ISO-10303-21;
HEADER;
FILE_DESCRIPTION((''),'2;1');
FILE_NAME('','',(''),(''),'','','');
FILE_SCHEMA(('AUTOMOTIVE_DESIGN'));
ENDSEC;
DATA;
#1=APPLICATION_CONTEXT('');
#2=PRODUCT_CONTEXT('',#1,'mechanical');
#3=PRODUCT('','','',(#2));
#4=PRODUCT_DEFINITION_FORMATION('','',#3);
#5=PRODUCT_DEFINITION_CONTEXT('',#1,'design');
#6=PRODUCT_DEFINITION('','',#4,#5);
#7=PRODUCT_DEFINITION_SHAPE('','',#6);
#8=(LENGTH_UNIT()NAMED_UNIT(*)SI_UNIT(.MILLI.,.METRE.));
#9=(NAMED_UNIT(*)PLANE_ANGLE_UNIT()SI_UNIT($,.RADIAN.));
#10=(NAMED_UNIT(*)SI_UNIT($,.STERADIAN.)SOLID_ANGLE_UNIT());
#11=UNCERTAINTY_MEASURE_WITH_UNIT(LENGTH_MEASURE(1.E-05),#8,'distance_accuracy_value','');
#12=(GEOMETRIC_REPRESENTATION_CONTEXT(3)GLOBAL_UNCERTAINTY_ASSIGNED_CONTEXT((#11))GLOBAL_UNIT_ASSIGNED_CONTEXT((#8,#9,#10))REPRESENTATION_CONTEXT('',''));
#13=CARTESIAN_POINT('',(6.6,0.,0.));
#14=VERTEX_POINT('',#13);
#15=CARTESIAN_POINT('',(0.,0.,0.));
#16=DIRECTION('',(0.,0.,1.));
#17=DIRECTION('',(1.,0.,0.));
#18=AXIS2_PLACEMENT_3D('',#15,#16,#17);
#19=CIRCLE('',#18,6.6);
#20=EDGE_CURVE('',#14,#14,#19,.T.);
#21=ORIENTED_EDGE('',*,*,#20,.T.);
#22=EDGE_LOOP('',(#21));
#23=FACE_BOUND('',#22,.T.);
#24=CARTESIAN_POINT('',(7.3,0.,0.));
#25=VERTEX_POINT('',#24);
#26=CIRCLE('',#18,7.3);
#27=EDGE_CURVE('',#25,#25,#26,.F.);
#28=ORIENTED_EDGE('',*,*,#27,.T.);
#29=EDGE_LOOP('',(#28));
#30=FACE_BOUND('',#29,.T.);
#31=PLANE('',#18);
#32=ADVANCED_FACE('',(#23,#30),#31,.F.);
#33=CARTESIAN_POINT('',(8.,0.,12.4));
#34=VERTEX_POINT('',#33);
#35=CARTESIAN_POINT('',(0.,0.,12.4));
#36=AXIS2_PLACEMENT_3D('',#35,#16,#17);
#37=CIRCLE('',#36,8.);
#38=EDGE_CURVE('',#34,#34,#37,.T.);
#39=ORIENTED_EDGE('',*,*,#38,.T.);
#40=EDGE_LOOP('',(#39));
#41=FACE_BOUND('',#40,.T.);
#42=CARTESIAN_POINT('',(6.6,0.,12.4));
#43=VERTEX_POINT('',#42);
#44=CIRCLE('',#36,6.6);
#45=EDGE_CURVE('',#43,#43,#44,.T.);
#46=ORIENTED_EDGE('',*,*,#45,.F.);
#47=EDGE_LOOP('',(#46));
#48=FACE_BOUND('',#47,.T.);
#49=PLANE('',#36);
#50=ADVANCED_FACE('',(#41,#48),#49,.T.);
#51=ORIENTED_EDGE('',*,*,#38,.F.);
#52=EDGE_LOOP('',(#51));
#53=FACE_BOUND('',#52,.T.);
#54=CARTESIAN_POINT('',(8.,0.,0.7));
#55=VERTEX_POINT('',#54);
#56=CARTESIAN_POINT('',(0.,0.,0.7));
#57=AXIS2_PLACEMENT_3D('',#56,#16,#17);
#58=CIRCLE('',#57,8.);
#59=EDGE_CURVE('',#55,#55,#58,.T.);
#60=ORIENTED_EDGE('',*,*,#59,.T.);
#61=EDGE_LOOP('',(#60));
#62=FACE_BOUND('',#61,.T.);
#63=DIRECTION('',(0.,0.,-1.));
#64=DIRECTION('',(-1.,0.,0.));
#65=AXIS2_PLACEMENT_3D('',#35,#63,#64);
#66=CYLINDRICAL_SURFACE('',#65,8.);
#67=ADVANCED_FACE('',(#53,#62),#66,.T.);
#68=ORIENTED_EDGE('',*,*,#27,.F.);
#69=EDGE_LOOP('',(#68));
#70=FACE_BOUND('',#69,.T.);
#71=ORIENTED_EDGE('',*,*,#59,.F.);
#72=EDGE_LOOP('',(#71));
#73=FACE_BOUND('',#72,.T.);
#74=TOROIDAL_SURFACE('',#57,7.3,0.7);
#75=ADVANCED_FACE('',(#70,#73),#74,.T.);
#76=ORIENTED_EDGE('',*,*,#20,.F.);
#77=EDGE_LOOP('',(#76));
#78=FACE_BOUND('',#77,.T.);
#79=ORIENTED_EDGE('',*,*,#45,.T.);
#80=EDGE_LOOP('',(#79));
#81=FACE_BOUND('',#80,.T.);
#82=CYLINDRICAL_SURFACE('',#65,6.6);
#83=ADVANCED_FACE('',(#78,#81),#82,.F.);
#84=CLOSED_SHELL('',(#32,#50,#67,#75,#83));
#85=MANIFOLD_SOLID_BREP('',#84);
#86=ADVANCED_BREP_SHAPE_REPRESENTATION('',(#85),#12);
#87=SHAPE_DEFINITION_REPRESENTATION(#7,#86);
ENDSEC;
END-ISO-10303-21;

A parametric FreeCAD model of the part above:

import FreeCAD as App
import Part
import Sketcher
from FreeCAD import Vector
Q = App.Units.Quantity


def edges_at(feature, points):
    """Names of the edges that pass closest to the given points."""
    edges = feature.Shape.Edges
    near = lambda p: min(range(len(edges)), key=lambda i: edges[i].distToShape(Part.Vertex(*p))[0])
    return sorted({f"Edge{near(p) + 1}" for p in points})

doc = App.newDocument("Part")
params = doc.addObject("Spreadsheet::Sheet", "Params")
for row, (alias, value) in enumerate([
    ("sketch1_diameter", "16 mm"),
    ("sketch1_diameter2", "13.2 mm"),
    ("pad1_length", "12.4 mm"),
    ("fillet_radius", "0.7 mm"),
], start=1):
    params.set(f"A{row}", alias)
    params.set(f"B{row}", "=" + value)
    params.setAlias(f"B{row}", alias)

body = doc.addObject("PartDesign::Body", "Body")

sketch1 = body.newObject("Sketcher::SketchObject", "Sketch")
sketch1.AttachmentSupport = (doc.getObject("XY_Plane"), [""])
sketch1.MapMode = "FlatFace"
sketch1.addGeometry([
    Part.Circle(Vector(0, 0, 0), Vector(0, 0, 1), 8),
    Part.Circle(Vector(0, 0, 0), Vector(0, 0, 1), 6.6),
], False)
sketch1.addConstraint([
    Sketcher.Constraint("Coincident", 0, 3, -1, 1),
    Sketcher.Constraint("Coincident", 1, 3, -1, 1),
    Sketcher.Constraint("Diameter", 0, Q("16 mm")),
    Sketcher.Constraint("Diameter", 1, Q("13.2 mm")),
])
sketch1.setExpression("Constraints[2]", "Params.sketch1_diameter")
sketch1.setExpression("Constraints[3]", "Params.sketch1_diameter2")
pad1 = body.newObject("PartDesign::Pad", "Pad")
pad1.Profile = sketch1
pad1.setExpression("Length", "Params.pad1_length")
doc.recompute()

fillet = body.newObject("PartDesign::Fillet", "Fillet")
fillet.Base = (pad1, edges_at(pad1, [(-8, 0, 0)]))
fillet.setExpression("Radius", "Params.fillet_radius")

doc.recompute()
